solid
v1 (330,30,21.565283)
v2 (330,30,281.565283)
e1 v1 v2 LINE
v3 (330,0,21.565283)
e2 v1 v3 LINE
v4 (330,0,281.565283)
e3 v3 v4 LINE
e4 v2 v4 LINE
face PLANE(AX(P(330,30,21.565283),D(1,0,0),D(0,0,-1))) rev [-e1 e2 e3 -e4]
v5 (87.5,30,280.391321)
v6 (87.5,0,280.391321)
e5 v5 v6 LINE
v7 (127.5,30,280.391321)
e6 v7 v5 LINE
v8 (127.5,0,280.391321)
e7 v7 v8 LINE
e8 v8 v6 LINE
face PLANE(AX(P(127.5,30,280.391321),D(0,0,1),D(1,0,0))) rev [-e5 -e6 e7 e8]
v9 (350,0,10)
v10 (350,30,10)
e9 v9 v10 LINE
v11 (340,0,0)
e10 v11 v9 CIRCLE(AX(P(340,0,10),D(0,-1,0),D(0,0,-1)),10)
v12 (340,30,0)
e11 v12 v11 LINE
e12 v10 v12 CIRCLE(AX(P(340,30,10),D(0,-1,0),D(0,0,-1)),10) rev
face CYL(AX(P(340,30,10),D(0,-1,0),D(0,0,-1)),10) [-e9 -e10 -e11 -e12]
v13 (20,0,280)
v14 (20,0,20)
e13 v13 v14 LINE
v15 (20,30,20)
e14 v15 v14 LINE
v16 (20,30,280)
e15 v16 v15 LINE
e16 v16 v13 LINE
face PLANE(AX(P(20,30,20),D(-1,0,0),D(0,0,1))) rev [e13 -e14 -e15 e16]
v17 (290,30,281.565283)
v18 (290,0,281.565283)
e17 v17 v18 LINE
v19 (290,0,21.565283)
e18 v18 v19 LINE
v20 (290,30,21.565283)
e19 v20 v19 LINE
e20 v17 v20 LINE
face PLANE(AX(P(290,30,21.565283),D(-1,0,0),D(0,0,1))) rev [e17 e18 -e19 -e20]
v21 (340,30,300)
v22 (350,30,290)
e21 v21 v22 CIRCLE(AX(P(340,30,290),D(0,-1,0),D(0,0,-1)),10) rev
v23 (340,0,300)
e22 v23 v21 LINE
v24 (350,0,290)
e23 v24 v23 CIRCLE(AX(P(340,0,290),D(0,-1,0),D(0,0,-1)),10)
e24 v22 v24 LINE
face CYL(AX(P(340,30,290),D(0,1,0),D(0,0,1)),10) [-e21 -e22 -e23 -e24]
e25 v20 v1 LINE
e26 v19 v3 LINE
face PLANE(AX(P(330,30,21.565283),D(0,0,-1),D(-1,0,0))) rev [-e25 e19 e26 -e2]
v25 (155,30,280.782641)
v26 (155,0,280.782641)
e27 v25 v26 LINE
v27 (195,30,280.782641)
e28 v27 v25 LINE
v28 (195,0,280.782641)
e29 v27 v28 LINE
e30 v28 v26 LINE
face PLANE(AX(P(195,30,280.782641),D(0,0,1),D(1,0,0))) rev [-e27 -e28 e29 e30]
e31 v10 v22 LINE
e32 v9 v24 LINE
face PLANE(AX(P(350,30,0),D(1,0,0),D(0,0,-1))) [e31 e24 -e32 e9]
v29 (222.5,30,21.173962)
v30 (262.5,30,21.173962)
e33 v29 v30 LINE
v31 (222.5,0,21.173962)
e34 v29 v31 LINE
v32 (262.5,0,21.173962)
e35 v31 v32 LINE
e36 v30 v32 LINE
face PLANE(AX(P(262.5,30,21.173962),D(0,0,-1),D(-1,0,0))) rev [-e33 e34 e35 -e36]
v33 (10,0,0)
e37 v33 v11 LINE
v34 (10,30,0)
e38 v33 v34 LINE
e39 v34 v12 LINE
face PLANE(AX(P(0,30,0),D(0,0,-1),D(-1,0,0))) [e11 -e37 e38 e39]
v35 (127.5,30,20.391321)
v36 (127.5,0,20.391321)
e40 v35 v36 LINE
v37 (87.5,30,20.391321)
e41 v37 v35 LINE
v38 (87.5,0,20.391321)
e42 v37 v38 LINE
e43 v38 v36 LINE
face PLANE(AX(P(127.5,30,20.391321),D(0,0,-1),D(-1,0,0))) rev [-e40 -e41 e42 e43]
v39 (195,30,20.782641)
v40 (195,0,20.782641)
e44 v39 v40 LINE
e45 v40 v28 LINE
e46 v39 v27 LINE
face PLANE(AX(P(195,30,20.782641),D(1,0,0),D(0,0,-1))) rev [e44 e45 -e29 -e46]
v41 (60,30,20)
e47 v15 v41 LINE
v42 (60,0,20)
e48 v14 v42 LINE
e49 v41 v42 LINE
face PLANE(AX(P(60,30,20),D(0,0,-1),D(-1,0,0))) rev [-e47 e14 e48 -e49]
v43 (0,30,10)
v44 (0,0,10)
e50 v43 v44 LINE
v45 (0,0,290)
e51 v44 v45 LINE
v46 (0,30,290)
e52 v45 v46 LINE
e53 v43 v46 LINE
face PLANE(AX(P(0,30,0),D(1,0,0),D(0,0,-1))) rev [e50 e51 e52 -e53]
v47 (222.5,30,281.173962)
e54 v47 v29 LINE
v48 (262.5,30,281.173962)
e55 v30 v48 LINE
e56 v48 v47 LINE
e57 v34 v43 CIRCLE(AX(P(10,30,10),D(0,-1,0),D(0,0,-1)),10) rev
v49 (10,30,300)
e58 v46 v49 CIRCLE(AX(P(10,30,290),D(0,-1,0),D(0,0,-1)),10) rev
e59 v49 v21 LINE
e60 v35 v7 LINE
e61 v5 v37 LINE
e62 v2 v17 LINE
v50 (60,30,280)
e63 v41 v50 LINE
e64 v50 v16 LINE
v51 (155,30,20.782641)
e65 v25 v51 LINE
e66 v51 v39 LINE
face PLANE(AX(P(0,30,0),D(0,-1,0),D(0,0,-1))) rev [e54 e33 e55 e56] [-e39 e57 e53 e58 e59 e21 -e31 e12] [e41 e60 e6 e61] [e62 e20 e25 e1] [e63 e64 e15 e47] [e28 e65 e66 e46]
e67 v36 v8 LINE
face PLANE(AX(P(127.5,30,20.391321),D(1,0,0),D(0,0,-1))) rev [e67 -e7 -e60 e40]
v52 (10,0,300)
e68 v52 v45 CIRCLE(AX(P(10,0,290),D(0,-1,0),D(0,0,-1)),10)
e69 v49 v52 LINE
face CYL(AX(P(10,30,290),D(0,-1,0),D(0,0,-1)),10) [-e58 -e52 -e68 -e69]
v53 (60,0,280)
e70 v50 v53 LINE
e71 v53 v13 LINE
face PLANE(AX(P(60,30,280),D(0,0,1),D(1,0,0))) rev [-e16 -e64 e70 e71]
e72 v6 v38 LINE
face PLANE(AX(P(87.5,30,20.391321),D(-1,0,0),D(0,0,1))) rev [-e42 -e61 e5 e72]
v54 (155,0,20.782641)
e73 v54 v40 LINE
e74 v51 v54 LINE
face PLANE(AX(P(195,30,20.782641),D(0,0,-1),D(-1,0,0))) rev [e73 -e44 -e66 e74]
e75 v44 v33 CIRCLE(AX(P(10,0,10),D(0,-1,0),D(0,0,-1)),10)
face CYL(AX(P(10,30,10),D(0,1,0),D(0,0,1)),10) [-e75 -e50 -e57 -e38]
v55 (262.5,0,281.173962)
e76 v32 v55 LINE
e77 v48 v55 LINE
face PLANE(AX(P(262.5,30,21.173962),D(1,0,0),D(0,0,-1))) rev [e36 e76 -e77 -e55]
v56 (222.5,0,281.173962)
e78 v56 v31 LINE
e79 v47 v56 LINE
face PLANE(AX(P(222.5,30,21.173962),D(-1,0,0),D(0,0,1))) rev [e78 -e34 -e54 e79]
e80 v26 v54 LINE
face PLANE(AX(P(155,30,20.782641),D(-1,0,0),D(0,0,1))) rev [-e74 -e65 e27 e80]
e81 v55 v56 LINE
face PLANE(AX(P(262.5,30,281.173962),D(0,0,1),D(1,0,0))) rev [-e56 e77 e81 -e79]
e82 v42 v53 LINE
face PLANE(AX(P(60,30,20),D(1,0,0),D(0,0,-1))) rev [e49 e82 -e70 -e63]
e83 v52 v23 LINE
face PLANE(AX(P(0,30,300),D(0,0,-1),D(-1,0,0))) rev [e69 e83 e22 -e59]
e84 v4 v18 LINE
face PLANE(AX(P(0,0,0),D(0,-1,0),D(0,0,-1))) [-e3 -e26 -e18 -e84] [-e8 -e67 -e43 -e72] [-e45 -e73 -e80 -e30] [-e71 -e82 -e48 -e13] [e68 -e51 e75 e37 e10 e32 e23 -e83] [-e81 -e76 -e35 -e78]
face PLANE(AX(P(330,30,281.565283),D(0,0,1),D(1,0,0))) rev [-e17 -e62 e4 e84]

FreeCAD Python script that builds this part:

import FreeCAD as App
import Part
import Sketcher


def edges_at(feature, points):
    """Names of the edges that pass closest to the given points."""
    edges = feature.Shape.Edges
    near = lambda p: min(range(len(edges)), key=lambda i: edges[i].distToShape(Part.Vertex(*p))[0])
    return sorted({f"Edge{near(p) + 1}" for p in points})

doc = App.newDocument("Part")
body = doc.addObject("PartDesign::Body", "Body")

# Sketch on XZ plane
sketch1 = body.newObject("Sketcher::SketchObject", "Sketch")
sketch1.AttachmentSupport = (doc.getObject("XZ_Plane"), [""])
sketch1.MapMode = "FlatFace"
sketch1.addGeometry([
    Part.LineSegment(App.Vector(0, 0, 0), App.Vector(0, 300, 0)),
    Part.LineSegment(App.Vector(0, 300, 0), App.Vector(350, 300, 0)),
    Part.LineSegment(App.Vector(350, 300, 0), App.Vector(350, 0, 0)),
    Part.LineSegment(App.Vector(350, 0, 0), App.Vector(0, 0, 0)),
], False)
sketch1.addConstraint([
    Sketcher.Constraint("Coincident", 0, 2, 1, 1),
    Sketcher.Constraint("Coincident", 1, 2, 2, 1),
    Sketcher.Constraint("Coincident", 2, 2, 3, 1),
    Sketcher.Constraint("Coincident", 3, 2, 0, 1),
    Sketcher.Constraint("Vertical", 0),
    Sketcher.Constraint("Horizontal", 1),
    Sketcher.Constraint("Vertical", 2),
    Sketcher.Constraint("Horizontal", 3),
    Sketcher.Constraint("Coincident", 3, 2, -1, 1),
    Sketcher.Constraint("DistanceX", 1, 1, 1, 2, 350.0),
    Sketcher.Constraint("DistanceY", 0, 1, 0, 2, 300.0),
])
pad1 = body.newObject("PartDesign::Pad", "Pad")
pad1.Profile = sketch1
pad1.Length = 30
pad1.Reversed = True

# Sketch on XZ plane
sketch2 = body.newObject("Sketcher::SketchObject", "Sketch001")
sketch2.AttachmentSupport = (doc.getObject("XZ_Plane"), [""])
sketch2.MapMode = "FlatFace"
sketch2.addGeometry([
    Part.LineSegment(App.Vector(60, 20, 0), App.Vector(60, 280, 0)),  # 0
    Part.LineSegment(App.Vector(60, 280, 0), App.Vector(20, 280, 0)),  # 1
    Part.LineSegment(App.Vector(20, 280, 0), App.Vector(20, 20, 0)),  # 2
    Part.LineSegment(App.Vector(20, 20, 0), App.Vector(60, 20, 0)),  # 3
    Part.LineSegment(App.Vector(128, 20, 0), App.Vector(128, 280, 0)),  # 4
    Part.LineSegment(App.Vector(128, 280, 0), App.Vector(88, 280, 0)),  # 5
    Part.LineSegment(App.Vector(88, 280, 0), App.Vector(88, 20, 0)),  # 6
    Part.LineSegment(App.Vector(88, 20, 0), App.Vector(128, 20, 0)),  # 7
    Part.LineSegment(App.Vector(195, 21, 0), App.Vector(195, 281, 0)),  # 8
    Part.LineSegment(App.Vector(195, 281, 0), App.Vector(155, 281, 0)),  # 9
    Part.LineSegment(App.Vector(155, 281, 0), App.Vector(155, 21, 0)),  # 10
    Part.LineSegment(App.Vector(155, 21, 0), App.Vector(195, 21, 0)),  # 11
    Part.LineSegment(App.Vector(262, 21, 0), App.Vector(262, 281, 0)),  # 12
    Part.LineSegment(App.Vector(262, 281, 0), App.Vector(222, 281, 0)),  # 13
    Part.LineSegment(App.Vector(222, 281, 0), App.Vector(222, 21, 0)),  # 14
    Part.LineSegment(App.Vector(222, 21, 0), App.Vector(262, 21, 0)),  # 15
    Part.LineSegment(App.Vector(330, 22, 0), App.Vector(330, 282, 0)),  # 16
    Part.LineSegment(App.Vector(330, 282, 0), App.Vector(290, 282, 0)),  # 17
    Part.LineSegment(App.Vector(290, 282, 0), App.Vector(290, 22, 0)),  # 18
    Part.LineSegment(App.Vector(290, 22, 0), App.Vector(330, 22, 0)),  # 19
], False)
sketch2.addConstraint([
    Sketcher.Constraint("Coincident", 0, 2, 1, 1),
    Sketcher.Constraint("Coincident", 1, 2, 2, 1),
    Sketcher.Constraint("Coincident", 2, 2, 3, 1),
    Sketcher.Constraint("Coincident", 3, 2, 0, 1),
    Sketcher.Constraint("Coincident", 4, 2, 5, 1),
    Sketcher.Constraint("Coincident", 5, 2, 6, 1),
    Sketcher.Constraint("Coincident", 6, 2, 7, 1),
    Sketcher.Constraint("Coincident", 7, 2, 4, 1),
    Sketcher.Constraint("Coincident", 8, 2, 9, 1),
    Sketcher.Constraint("Coincident", 9, 2, 10, 1),
    Sketcher.Constraint("Coincident", 10, 2, 11, 1),
    Sketcher.Constraint("Coincident", 11, 2, 8, 1),
    Sketcher.Constraint("Coincident", 12, 2, 13, 1),
    Sketcher.Constraint("Coincident", 13, 2, 14, 1),
    Sketcher.Constraint("Coincident", 14, 2, 15, 1),
    Sketcher.Constraint("Coincident", 15, 2, 12, 1),
    Sketcher.Constraint("Coincident", 16, 2, 17, 1),
    Sketcher.Constraint("Coincident", 17, 2, 18, 1),
    Sketcher.Constraint("Coincident", 18, 2, 19, 1),
    Sketcher.Constraint("Coincident", 19, 2, 16, 1),
    Sketcher.Constraint("Vertical", 0),
    Sketcher.Constraint("Horizontal", 1),
    Sketcher.Constraint("Vertical", 2),
    Sketcher.Constraint("Horizontal", 3),
    Sketcher.Constraint("Vertical", 4),
    Sketcher.Constraint("Horizontal", 5),
    Sketcher.Constraint("Vertical", 6),
    Sketcher.Constraint("Horizontal", 7),
    Sketcher.Constraint("Vertical", 8),
    Sketcher.Constraint("Horizontal", 9),
    Sketcher.Constraint("Vertical", 10),
    Sketcher.Constraint("Horizontal", 11),
    Sketcher.Constraint("Vertical", 12),
    Sketcher.Constraint("Horizontal", 13),
    Sketcher.Constraint("Vertical", 14),
    Sketcher.Constraint("Horizontal", 15),
    Sketcher.Constraint("Vertical", 16),
    Sketcher.Constraint("Horizontal", 17),
    Sketcher.Constraint("Vertical", 18),
    Sketcher.Constraint("Horizontal", 19),
    Sketcher.Constraint("Equal", 3, 5),
    Sketcher.Constraint("Equal", 7, 9),
    Sketcher.Constraint("Equal", 11, 13),
    Sketcher.Constraint("Equal", 15, 17),
    Sketcher.Constraint("Equal", 2, 4),
    Sketcher.Constraint("Equal", 6, 8),
    Sketcher.Constraint("Equal", 10, 12),
    Sketcher.Constraint("Equal", 14, 16),
    Sketcher.Constraint("DistanceX", 1, 2, 1, 1, 40.0),
    Sketcher.Constraint("DistanceY", 0, 1, 0, 2, 260.0),
    Sketcher.Constraint("DistanceX", -1, 1, 0, 2, 60.0),
    Sketcher.Constraint("DistanceY", -1, 1, 0, 2, 280.0),
    Sketcher.Constraint("DistanceX", -1, 1, 8, 2, 195.0),
    Sketcher.Constraint("DistanceX", -1, 1, 16, 2, 330.0),
    Sketcher.Constraint("DistanceX", 4, 2, 12, 2, 135.0),
    Sketcher.Constraint("DistanceX", -1, 1, 4, 2, 127.5),
    Sketcher.Constraint("DistanceY", -1, 1, 4, 2, 280.391321),
    Sketcher.Constraint("DistanceY", -1, 1, 8, 2, 280.782641),
    Sketcher.Constraint("DistanceY", 8, 2, 12, 2, 0.391321),
    Sketcher.Constraint("DistanceY", 12, 2, 16, 2, 0.391321),
])
pocket1 = body.newObject("PartDesign::Pocket", "Pocket")
pocket1.Profile = sketch2
pocket1.Type = "ThroughAll"
doc.recompute()

fillet = body.newObject("PartDesign::Fillet", "Fillet")
fillet.Base = (pocket1, edges_at(pocket1, [
    (0, 15, 300),
    (0, 15, 0),
    (350, 15, 0),
    (350, 15, 300),
]))
fillet.Radius = 10

doc.recompute()
